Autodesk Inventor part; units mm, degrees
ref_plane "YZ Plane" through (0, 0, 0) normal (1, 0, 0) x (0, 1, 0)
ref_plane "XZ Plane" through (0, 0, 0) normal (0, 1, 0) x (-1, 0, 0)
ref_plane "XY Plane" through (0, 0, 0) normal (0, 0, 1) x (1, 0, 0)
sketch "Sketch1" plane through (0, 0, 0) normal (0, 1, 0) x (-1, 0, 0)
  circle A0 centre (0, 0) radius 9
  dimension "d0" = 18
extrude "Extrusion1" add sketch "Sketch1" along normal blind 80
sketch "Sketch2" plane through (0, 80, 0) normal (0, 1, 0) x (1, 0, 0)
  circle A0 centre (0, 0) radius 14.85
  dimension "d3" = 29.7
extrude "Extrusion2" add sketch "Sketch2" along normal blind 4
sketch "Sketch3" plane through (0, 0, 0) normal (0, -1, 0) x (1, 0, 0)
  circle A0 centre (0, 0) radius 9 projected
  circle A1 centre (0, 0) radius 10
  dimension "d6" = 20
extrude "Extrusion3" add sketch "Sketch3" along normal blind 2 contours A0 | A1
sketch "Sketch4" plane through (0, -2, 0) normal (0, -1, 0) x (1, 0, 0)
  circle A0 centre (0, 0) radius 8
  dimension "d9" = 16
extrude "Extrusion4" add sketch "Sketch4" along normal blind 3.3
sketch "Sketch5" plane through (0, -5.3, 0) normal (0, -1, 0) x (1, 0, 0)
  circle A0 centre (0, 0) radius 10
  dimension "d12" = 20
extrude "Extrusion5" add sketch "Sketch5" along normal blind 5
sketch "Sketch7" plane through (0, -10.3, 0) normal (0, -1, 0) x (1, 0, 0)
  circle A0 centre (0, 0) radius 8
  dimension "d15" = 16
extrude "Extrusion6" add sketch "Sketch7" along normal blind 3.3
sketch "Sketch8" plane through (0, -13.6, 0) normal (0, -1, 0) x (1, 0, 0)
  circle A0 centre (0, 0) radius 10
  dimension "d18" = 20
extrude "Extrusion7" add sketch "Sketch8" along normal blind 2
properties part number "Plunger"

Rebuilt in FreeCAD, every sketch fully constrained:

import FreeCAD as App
import Part
import Sketcher
Q = App.Units.Quantity

doc = App.newDocument("Part")
params = doc.addObject("Spreadsheet::Sheet", "Params")
for row, (alias, value) in enumerate([
    ("sketch1_diameter", "18 mm"),
    ("pad1_length", "80 mm"),
    ("sketch2_diameter", "29.7 mm"),
    ("pad2_length", "4 mm"),
    ("sketch3_diameter", "20 mm"),
    ("pad3_length", "2 mm"),
    ("sketch4_diameter", "16 mm"),
    ("pad4_length", "3.3 mm"),
    ("sketch5_diameter", "20 mm"),
    ("pad5_length", "5 mm"),
    ("sketch6_diameter", "16 mm"),
    ("pad6_length", "3.3 mm"),
    ("sketch7_diameter", "20 mm"),
    ("pad7_length", "2 mm"),
], start=1):
    params.set(f"A{row}", alias)
    params.set(f"B{row}", "=" + value)
    params.setAlias(f"B{row}", alias)

body = doc.addObject("PartDesign::Body", "Body")

sketch1 = body.newObject("Sketcher::SketchObject", "Sketch")
sketch1.AttachmentSupport = (doc.getObject("XZ_Plane"), [""])
sketch1.MapMode = "FlatFace"
sketch1.addGeometry(Part.Circle(App.Vector(0, 0, 0), App.Vector(0, 0, 1), 9), False)
sketch1.addConstraint(Sketcher.Constraint("Coincident", 0, 3, -1, 1))
sketch1.addConstraint(Sketcher.Constraint("Diameter", 0, Q("18 mm")))
sketch1.setExpression("Constraints[1]", "Params.sketch1_diameter")
pad1 = body.newObject("PartDesign::Pad", "Pad")
pad1.Profile = sketch1
pad1.setExpression("Length", "Params.pad1_length")
pad1.Reversed = True

sketch2 = body.newObject("Sketcher::SketchObject", "Sketch001")
sketch2.AttachmentSupport = (doc.getObject("XZ_Plane"), [""])
sketch2.MapMode = "FlatFace"
sketch2.AttachmentOffset = App.Placement(App.Vector(0, 0, -80), App.Rotation())
sketch2.addGeometry(Part.Circle(App.Vector(0, 0, 0), App.Vector(0, 0, 1), 15), False)
sketch2.addConstraint(Sketcher.Constraint("Coincident", 0, 3, -1, 1))
sketch2.addConstraint(Sketcher.Constraint("Diameter", 0, Q("29.7 mm")))
sketch2.setExpression("Constraints[1]", "Params.sketch2_diameter")
pad2 = body.newObject("PartDesign::Pad", "Pad001")
pad2.Profile = sketch2
pad2.setExpression("Length", "Params.pad2_length")
pad2.Reversed = True

sketch3 = body.newObject("Sketcher::SketchObject", "Sketch002")
sketch3.AttachmentSupport = (doc.getObject("XZ_Plane"), [""])
sketch3.MapMode = "FlatFace"
sketch3.addGeometry(Part.Circle(App.Vector(0, 0, 0), App.Vector(0, 0, 1), 10), False)
sketch3.addConstraint(Sketcher.Constraint("Coincident", 0, 3, -1, 1))
sketch3.addConstraint(Sketcher.Constraint("Diameter", 0, Q("20 mm")))
sketch3.setExpression("Constraints[1]", "Params.sketch3_diameter")
pad3 = body.newObject("PartDesign::Pad", "Pad002")
pad3.Profile = sketch3
pad3.setExpression("Length", "Params.pad3_length")

sketch4 = body.newObject("Sketcher::SketchObject", "Sketch003")
sketch4.AttachmentSupport = (doc.getObject("XZ_Plane"), [""])
sketch4.MapMode = "FlatFace"
sketch4.AttachmentOffset = App.Placement(App.Vector(0, 0, 2), App.Rotation())
sketch4.addGeometry(Part.Circle(App.Vector(0, 0, 0), App.Vector(0, 0, 1), 8), False)
sketch4.addConstraint(Sketcher.Constraint("Coincident", 0, 3, -1, 1))
sketch4.addConstraint(Sketcher.Constraint("Diameter", 0, Q("16 mm")))
sketch4.setExpression("Constraints[1]", "Params.sketch4_diameter")
pad4 = body.newObject("PartDesign::Pad", "Pad003")
pad4.Profile = sketch4
pad4.setExpression("Length", "Params.pad4_length")

sketch5 = body.newObject("Sketcher::SketchObject", "Sketch004")
sketch5.AttachmentSupport = (doc.getObject("XZ_Plane"), [""])
sketch5.MapMode = "FlatFace"
sketch5.AttachmentOffset = App.Placement(App.Vector(0, 0, 5.3), App.Rotation())
sketch5.addGeometry(Part.Circle(App.Vector(0, 0, 0), App.Vector(0, 0, 1), 10), False)
sketch5.addConstraint(Sketcher.Constraint("Coincident", 0, 3, -1, 1))
sketch5.addConstraint(Sketcher.Constraint("Diameter", 0, Q("20 mm")))
sketch5.setExpression("Constraints[1]", "Params.sketch5_diameter")
pad5 = body.newObject("PartDesign::Pad", "Pad004")
pad5.Profile = sketch5
pad5.setExpression("Length", "Params.pad5_length")

sketch6 = body.newObject("Sketcher::SketchObject", "Sketch005")
sketch6.AttachmentSupport = (doc.getObject("XZ_Plane"), [""])
sketch6.MapMode = "FlatFace"
sketch6.AttachmentOffset = App.Placement(App.Vector(0, 0, 10.3), App.Rotation())
sketch6.addGeometry(Part.Circle(App.Vector(0, 0, 0), App.Vector(0, 0, 1), 8), False)
sketch6.addConstraint(Sketcher.Constraint("Coincident", 0, 3, -1, 1))
sketch6.addConstraint(Sketcher.Constraint("Diameter", 0, Q("16 mm")))
sketch6.setExpression("Constraints[1]", "Params.sketch6_diameter")
pad6 = body.newObject("PartDesign::Pad", "Pad005")
pad6.Profile = sketch6
pad6.setExpression("Length", "Params.pad6_length")

sketch7 = body.newObject("Sketcher::SketchObject", "Sketch006")
sketch7.AttachmentSupport = (doc.getObject("XZ_Plane"), [""])
sketch7.MapMode = "FlatFace"
sketch7.AttachmentOffset = App.Placement(App.Vector(0, 0, 13.6), App.Rotation())
sketch7.addGeometry(Part.Circle(App.Vector(0, 0, 0), App.Vector(0, 0, 1), 10), False)
sketch7.addConstraint(Sketcher.Constraint("Coincident", 0, 3, -1, 1))
sketch7.addConstraint(Sketcher.Constraint("Diameter", 0, Q("20 mm")))
sketch7.setExpression("Constraints[1]", "Params.sketch7_diameter")
pad7 = body.newObject("PartDesign::Pad", "Pad006")
pad7.Profile = sketch7
pad7.setExpression("Length", "Params.pad7_length")

doc.recompute()
